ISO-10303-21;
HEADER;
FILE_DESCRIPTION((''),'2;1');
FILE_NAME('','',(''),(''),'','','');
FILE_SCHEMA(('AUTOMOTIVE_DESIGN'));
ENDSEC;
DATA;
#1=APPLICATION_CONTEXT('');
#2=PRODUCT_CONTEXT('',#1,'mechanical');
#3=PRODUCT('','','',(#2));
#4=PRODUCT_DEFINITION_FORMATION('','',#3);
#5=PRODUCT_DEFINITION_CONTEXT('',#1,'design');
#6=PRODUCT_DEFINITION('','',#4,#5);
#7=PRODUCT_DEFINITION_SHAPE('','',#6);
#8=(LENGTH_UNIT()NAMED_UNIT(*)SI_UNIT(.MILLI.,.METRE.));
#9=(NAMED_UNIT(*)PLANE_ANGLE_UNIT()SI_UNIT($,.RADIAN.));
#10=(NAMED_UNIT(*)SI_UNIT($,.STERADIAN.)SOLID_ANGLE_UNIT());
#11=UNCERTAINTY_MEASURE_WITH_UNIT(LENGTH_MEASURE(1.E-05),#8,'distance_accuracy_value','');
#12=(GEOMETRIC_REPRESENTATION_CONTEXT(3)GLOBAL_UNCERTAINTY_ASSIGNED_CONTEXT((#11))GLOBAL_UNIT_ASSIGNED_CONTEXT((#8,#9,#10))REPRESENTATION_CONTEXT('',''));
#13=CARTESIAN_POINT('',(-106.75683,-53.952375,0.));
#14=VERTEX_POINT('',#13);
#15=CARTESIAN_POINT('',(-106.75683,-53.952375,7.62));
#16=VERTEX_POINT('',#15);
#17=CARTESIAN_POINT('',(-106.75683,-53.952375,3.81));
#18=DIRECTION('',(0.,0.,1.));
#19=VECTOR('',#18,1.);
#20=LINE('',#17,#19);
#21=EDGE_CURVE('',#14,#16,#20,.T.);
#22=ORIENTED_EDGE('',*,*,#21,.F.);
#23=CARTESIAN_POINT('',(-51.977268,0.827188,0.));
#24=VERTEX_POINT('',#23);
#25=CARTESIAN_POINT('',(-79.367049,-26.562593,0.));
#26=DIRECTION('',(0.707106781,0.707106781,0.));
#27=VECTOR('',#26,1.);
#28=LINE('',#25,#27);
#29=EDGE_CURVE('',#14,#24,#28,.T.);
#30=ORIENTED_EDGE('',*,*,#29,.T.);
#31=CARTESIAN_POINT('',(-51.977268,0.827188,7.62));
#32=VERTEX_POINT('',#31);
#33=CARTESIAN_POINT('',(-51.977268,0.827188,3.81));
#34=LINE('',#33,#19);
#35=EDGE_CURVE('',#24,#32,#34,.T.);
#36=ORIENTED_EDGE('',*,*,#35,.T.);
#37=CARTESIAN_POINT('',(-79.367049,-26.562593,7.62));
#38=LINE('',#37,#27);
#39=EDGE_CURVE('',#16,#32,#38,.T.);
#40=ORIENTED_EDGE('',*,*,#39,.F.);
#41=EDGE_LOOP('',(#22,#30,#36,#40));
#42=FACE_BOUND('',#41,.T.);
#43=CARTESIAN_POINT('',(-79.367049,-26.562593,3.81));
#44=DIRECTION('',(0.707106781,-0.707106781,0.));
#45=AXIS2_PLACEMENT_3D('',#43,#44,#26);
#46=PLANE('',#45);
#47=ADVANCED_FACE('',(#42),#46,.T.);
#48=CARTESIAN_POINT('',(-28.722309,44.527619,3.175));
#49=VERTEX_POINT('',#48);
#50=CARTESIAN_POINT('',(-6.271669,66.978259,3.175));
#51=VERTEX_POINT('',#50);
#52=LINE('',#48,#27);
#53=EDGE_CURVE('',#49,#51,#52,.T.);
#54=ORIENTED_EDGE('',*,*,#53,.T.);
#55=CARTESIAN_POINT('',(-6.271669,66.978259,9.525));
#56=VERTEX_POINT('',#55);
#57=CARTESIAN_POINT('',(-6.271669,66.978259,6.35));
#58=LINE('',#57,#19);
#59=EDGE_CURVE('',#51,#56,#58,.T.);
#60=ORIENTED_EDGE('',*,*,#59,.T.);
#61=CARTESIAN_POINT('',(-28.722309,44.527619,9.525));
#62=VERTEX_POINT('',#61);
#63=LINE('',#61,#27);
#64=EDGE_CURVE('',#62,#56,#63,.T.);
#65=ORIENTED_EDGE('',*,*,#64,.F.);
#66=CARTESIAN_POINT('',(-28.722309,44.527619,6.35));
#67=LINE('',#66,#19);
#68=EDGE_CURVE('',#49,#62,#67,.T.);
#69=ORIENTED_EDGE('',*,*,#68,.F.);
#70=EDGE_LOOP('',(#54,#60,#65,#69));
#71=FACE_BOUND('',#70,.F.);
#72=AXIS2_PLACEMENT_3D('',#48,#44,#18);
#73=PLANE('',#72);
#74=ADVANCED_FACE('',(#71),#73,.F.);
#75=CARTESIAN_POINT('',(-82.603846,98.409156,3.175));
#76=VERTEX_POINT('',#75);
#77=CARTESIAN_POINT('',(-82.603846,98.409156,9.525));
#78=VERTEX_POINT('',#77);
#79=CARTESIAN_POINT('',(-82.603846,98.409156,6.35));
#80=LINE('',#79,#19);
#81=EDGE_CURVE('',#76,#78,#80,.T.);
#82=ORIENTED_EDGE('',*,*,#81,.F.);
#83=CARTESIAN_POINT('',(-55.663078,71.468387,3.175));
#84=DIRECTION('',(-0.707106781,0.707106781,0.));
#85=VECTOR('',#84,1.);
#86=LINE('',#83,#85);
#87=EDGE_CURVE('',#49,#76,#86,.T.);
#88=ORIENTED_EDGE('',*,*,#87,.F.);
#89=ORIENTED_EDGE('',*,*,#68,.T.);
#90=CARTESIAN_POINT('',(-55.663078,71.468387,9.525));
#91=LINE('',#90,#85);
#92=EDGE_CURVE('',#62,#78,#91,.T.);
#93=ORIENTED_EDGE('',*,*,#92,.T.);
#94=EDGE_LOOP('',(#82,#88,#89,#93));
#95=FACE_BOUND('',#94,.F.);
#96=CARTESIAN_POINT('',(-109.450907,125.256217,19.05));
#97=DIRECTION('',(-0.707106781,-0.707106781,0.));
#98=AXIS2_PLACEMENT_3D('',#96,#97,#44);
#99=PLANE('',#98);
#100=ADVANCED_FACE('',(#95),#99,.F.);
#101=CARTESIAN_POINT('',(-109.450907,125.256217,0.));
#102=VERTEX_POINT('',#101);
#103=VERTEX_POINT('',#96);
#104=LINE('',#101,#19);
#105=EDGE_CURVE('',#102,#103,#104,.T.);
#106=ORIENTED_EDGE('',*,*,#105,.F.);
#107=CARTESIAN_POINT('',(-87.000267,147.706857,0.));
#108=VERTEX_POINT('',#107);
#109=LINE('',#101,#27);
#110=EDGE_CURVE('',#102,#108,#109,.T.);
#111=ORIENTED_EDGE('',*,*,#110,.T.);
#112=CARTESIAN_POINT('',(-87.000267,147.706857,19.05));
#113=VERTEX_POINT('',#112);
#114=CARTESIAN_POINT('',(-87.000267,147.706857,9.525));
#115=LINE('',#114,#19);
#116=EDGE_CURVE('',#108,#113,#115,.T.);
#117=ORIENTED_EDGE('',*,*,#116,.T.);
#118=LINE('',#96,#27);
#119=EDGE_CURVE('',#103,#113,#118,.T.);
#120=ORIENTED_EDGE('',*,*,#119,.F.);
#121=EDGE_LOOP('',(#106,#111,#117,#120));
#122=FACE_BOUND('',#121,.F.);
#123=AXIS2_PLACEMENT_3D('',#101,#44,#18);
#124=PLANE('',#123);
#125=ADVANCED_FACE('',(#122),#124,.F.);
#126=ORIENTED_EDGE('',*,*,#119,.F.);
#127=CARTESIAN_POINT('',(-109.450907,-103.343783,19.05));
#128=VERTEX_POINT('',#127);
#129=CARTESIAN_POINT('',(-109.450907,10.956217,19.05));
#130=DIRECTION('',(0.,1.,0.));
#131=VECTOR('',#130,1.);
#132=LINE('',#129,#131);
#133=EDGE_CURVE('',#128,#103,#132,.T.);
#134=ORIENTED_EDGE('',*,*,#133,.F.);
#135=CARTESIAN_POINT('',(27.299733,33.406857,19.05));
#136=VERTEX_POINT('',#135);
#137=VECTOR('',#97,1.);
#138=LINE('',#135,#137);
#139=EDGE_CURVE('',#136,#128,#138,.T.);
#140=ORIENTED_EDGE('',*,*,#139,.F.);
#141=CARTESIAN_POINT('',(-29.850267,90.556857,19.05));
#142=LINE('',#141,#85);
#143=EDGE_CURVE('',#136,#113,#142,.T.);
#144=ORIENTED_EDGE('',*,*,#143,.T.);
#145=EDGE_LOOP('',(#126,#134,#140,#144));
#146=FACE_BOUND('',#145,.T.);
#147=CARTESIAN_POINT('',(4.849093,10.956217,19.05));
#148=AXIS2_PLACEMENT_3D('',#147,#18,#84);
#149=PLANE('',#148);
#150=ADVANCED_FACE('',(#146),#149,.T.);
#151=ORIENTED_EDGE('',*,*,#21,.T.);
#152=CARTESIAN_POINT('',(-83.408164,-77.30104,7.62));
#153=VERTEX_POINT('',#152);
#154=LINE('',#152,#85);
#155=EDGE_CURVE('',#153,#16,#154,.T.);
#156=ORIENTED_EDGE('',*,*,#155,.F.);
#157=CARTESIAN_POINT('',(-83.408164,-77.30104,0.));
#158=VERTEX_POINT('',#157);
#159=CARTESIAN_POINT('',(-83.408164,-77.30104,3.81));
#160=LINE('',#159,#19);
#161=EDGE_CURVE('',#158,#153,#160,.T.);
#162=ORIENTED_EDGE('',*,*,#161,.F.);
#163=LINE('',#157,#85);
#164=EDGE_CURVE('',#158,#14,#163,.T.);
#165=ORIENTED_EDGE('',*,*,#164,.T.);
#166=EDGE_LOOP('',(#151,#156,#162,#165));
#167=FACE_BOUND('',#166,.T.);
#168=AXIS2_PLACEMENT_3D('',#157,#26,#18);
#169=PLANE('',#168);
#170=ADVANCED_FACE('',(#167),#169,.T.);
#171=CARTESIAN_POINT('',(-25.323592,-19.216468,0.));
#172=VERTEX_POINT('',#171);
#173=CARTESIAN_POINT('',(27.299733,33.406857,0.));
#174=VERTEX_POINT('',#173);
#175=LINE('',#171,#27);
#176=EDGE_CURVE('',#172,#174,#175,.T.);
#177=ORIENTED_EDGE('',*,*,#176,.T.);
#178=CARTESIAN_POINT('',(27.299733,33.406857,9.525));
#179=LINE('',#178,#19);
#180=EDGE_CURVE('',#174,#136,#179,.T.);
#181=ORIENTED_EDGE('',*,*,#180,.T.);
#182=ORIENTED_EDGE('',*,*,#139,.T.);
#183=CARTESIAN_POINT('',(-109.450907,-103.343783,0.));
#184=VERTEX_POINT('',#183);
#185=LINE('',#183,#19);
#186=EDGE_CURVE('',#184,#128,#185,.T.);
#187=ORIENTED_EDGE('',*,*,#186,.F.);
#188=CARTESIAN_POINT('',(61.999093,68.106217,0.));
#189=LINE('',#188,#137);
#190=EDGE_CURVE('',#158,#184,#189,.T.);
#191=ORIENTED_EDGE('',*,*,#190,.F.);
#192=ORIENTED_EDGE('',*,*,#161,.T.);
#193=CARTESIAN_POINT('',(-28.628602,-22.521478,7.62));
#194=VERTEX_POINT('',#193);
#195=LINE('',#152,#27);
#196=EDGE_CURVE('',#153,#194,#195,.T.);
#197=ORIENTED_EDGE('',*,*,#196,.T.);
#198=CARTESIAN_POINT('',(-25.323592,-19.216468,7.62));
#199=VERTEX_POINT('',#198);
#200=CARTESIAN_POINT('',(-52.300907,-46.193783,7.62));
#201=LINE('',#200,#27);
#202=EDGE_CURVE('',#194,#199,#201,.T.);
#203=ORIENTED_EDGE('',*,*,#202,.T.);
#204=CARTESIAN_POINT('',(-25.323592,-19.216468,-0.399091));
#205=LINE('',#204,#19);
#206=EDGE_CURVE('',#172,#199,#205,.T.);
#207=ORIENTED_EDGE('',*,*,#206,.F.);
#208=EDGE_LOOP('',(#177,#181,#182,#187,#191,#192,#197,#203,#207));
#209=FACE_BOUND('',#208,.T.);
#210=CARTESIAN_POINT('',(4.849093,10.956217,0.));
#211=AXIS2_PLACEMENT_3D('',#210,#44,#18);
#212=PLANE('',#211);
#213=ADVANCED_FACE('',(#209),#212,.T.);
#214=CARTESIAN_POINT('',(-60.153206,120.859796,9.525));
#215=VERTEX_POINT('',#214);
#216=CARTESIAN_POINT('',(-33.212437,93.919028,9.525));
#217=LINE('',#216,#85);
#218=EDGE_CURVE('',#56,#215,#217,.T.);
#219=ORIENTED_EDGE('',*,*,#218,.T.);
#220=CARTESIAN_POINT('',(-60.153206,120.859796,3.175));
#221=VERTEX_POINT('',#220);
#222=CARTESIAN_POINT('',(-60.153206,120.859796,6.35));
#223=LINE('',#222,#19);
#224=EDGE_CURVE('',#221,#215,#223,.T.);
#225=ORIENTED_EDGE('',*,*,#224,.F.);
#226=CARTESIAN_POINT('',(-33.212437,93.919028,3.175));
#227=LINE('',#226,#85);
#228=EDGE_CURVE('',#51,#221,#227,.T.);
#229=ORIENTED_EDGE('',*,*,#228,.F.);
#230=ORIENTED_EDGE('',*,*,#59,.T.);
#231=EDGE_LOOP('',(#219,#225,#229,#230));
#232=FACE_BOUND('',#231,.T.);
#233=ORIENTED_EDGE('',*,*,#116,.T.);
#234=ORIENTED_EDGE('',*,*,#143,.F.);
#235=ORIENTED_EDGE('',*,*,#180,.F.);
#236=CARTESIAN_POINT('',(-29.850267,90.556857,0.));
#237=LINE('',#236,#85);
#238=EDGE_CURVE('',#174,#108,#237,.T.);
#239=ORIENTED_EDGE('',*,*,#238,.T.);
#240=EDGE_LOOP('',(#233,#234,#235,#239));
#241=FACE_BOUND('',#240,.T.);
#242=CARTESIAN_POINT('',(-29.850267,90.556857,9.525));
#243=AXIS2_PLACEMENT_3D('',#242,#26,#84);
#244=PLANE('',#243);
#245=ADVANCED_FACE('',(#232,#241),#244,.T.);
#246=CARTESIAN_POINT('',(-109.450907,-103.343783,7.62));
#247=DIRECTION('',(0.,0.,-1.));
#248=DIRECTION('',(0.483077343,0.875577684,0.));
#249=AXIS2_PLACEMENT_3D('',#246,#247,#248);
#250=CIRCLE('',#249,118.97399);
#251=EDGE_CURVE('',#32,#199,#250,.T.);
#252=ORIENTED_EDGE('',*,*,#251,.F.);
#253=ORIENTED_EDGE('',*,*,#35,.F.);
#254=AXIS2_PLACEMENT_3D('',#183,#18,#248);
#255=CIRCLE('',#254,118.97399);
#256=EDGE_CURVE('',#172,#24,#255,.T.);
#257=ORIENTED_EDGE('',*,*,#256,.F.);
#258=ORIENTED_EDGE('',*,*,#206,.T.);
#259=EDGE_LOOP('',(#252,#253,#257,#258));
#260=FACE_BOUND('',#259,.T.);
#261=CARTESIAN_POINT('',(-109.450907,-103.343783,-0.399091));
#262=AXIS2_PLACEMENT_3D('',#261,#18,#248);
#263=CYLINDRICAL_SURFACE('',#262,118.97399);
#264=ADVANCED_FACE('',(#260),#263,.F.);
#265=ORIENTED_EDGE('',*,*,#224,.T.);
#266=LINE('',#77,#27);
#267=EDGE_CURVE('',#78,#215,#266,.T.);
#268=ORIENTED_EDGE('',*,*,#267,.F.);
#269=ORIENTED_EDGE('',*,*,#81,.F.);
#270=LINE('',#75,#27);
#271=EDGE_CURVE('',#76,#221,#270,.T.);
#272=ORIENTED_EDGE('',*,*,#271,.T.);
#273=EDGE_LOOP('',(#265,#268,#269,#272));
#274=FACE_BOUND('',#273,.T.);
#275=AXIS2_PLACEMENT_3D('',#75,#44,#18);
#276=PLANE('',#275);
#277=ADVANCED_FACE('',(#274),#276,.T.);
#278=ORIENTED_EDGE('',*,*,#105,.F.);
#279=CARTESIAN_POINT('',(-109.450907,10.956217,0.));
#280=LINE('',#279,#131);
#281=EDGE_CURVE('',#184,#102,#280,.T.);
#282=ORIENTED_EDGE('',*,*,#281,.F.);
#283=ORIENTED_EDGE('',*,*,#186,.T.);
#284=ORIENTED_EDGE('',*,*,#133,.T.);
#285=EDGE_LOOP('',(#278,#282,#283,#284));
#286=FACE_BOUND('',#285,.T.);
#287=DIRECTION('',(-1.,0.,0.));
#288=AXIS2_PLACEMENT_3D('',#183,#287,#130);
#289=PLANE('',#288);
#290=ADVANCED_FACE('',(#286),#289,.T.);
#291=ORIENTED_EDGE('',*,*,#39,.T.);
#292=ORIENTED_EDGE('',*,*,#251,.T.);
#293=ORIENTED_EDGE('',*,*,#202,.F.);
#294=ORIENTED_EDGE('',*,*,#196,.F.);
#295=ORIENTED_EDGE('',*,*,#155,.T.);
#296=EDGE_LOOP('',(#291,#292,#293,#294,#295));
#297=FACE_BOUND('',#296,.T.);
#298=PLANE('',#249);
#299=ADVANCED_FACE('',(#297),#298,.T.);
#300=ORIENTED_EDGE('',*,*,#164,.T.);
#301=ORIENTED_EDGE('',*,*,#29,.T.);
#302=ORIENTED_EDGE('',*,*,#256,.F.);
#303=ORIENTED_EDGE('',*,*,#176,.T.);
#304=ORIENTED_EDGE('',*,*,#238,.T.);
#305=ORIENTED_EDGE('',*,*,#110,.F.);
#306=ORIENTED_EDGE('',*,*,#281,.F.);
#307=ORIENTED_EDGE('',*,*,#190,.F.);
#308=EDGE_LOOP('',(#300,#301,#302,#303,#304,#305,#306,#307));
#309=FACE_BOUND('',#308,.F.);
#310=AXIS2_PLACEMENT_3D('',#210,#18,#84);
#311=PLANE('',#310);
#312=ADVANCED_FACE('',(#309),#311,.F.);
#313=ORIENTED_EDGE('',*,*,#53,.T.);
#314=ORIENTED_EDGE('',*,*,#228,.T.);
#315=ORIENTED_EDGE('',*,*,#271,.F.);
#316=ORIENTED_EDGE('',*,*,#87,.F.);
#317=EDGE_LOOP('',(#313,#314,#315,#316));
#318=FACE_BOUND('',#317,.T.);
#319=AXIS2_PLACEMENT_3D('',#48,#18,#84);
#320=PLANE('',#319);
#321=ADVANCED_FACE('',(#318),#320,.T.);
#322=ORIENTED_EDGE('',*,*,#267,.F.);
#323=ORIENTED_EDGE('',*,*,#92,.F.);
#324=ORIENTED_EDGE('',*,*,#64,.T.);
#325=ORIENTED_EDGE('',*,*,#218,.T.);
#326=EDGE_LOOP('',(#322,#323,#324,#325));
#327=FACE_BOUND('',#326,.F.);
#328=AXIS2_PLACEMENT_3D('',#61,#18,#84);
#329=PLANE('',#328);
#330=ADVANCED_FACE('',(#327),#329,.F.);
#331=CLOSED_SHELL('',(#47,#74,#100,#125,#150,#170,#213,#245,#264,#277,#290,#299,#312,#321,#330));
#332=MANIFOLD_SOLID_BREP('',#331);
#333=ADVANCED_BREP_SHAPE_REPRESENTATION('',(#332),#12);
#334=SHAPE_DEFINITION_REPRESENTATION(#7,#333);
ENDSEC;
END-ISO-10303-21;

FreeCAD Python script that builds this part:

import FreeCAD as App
import Part
import Sketcher
from FreeCAD import Vector
Q = App.Units.Quantity


def add_polygon(sketch, points):
    """Adds a closed chain of lines whose ends are joined by coincident constraints."""
    first, n = sketch.GeometryCount, len(points)
    for a, b in zip(points, points[1:] + points[:1]):
        sketch.addGeometry(Part.LineSegment(App.Vector(*a, 0), App.Vector(*b, 0)), False)
    for i in range(n):
        sketch.addConstraint(Sketcher.Constraint("Coincident", first + i, 2, first + (i + 1) % n, 1))

doc = App.newDocument("Part")
body = doc.addObject("PartDesign::Body", "Body")

# Sketch on XY plane
sketch1 = doc.addObject("Sketcher::SketchObject", "Sketch")
body.addObject(sketch1)
sketch1.AttachmentSupport = (doc.XY_Plane, [""])
sketch1.MapMode = "FlatFace"
add_polygon(sketch1, [(-109, 125), (-109, -103), (119, -103), (119, 125)])  # lines 0-3
sketch1.addConstraint([
    Sketcher.Constraint("Vertical", 0),
    Sketcher.Constraint("Horizontal", 1),
    Sketcher.Constraint("Vertical", 2),
    Sketcher.Constraint("Horizontal", 3),
    Sketcher.Constraint("Equal", 3, 0),
    Sketcher.Constraint("DistanceX", 1, 1, 1, 2, Q("9 in")),
    Sketcher.Constraint("DistanceX", 0, 2, -1, 1, 109.450907),
    Sketcher.Constraint("DistanceY", 0, 2, -1, 1, 103.343783),
])
pad1 = doc.addObject("PartDesign::Pad", "Pad")
body.addObject(pad1)
pad1.Profile = sketch1
pad1.Length = Q("0.75 in")

# Sketch on XY plane
sketch2 = doc.addObject("Sketcher::SketchObject", "Sketch001")
body.addObject(sketch2)
sketch2.AttachmentSupport = (doc.XY_Plane, [""])
sketch2.MapMode = "FlatFace"
sketch2.AttachmentOffset = App.Placement(Vector(0, 0, 0.75 * 25.4), App.Rotation())
add_polygon(sketch2, [(156, -103), (119, 125), (-109, -103)])  # lines 0-2
sketch2.addConstraint([
    Sketcher.Constraint("Horizontal", 2),
    Sketcher.Constraint("Angle", 1, Q("-135 deg")),
    Sketcher.Constraint("DistanceX", 1, 2, 0, 2, Q("9 in")),
    Sketcher.Constraint("Distance", 0, 231.50656),
    Sketcher.Constraint("DistanceX", -1, 1, 2, 2, 155.71858),
    Sketcher.Constraint("DistanceY", -1, 1, 0, 2, 125.256217),
])
pocket1 = doc.addObject("PartDesign::Pocket", "Pocket")
body.addObject(pocket1)
pocket1.Profile = sketch2
pocket1.Type = "ThroughAll"

# Sketch on XY plane
sketch3 = doc.addObject("Sketcher::SketchObject", "Sketch002")
body.addObject(sketch3)
sketch3.AttachmentSupport = (doc.XY_Plane, [""])
sketch3.MapMode = "FlatFace"
sketch3.AttachmentOffset = App.Placement(Vector(0, 0, 0.75 * 25.4), App.Rotation())
add_polygon(sketch3, [(151, 139), (-109, 125), (5, 11)])  # lines 0-2
sketch3.addConstraint([
    Sketcher.Constraint("Angle", 1, Q("-45 deg")),
    Sketcher.Constraint("DistanceX", 0, 2, 1, 2, Q("4.5 in")),
    Sketcher.Constraint("Distance", 0, 260.45481),
    Sketcher.Constraint("Distance", 2, 194.117871),
    Sketcher.Constraint("DistanceX", -1, 1, 2, 2, 150.63414),
    Sketcher.Constraint("DistanceY", -1, 1, 0, 2, 125.256217),
])
pocket2 = doc.addObject("PartDesign::Pocket", "Pocket001")
body.addObject(pocket2)
pocket2.Profile = sketch3
pocket2.Length = Q("5 in")
pocket2.Midplane = True

# Sketch on an angled plane
sketch4 = doc.addObject("Sketcher::SketchObject", "Sketch003")
body.addObject(sketch4)
sketch4.Placement = App.Placement(Vector(-3.053562, 3.053562, 0), App.Rotation(Vector(0.707106781, 0.707106781, 0), Vector(0, 0, 0.999999999), Vector(0.707106781, -0.707106781, 0), "ZXY"))
add_polygon(sketch4, [(-114, 8), (-114, 0), (-36, 0), (-36, 8)])  # lines 0-3
sketch4.addConstraint([
    Sketcher.Constraint("Vertical", 0),
    Sketcher.Constraint("Horizontal", 1),
    Sketcher.Constraint("Vertical", 2),
    Sketcher.Constraint("Horizontal", 3),
    Sketcher.Constraint("PointOnObject", 0, 2, -1),
    Sketcher.Constraint("DistanceY", 0, 2, 0, 1, Q("0.3 in")),
    Sketcher.Constraint("DistanceX", 1, 1, 1, 2, Q("3.05 in")),
    Sketcher.Constraint("DistanceX", 0, 2, -1, 1, 113.638568),
])
pocket3 = doc.addObject("PartDesign::Pocket", "Pocket002")
body.addObject(pocket3)
pocket3.Profile = sketch4
pocket3.Length = Q("1.3 in")

# Sketch on an angled plane
sketch5 = doc.addObject("Sketcher::SketchObject", "Sketch004")
body.addObject(sketch5)
sketch5.Placement = App.Placement(Vector(7.902655, 7.902655, 0), App.Rotation(Vector(-0.707106781, 0.707106781, 0), Vector(0, 0, 0.999999999), Vector(0.707106781, 0.707106781, 0), "ZXY"))
add_polygon(sketch5, [(4, 19), (4, 0), (166, 0), (166, 19)])  # lines 0-3
add_polygon(sketch5, [(128, 3), (52, 3), (52, 10), (128, 10)])  # lines 4-7
sketch5.addConstraint([
    Sketcher.Constraint("Vertical", 0),
    Sketcher.Constraint("Horizontal", 1),
    Sketcher.Constraint("Vertical", 2),
    Sketcher.Constraint("Horizontal", 3),
    Sketcher.Constraint("Horizontal", 4),
    Sketcher.Constraint("Vertical", 5),
    Sketcher.Constraint("Horizontal", 6),
    Sketcher.Constraint("Vertical", 7),
    Sketcher.Constraint("PointOnObject", 0, 2, -1),
    Sketcher.Constraint("DistanceX", 4, 2, 4, 1, Q("3 in")),
    Sketcher.Constraint("DistanceY", 0, 2, 0, 1, Q("0.75 in")),
    Sketcher.Constraint("DistanceY", 5, 1, 5, 2, Q("0.25 in")),
    Sketcher.Constraint("DistanceY", -1, 1, 4, 2, Q("0.125 in")),
    Sketcher.Constraint("DistanceX", 1, 1, 1, 2, 161.64461),
    Sketcher.Constraint("DistanceX", -1, 1, 1, 2, 165.962999),
    Sketcher.Constraint("DistanceX", -1, 1, 4, 2, 51.795521),
])
pad2 = doc.addObject("PartDesign::Pad", "Pad001")
body.addObject(pad2)
pad2.Profile = sketch5
pad2.Length = Q("1.25 in")

# Sketch on an angled plane
sketch6 = doc.addObject("Sketcher::SketchObject", "Sketch005")
body.addObject(sketch6)
sketch6.Placement = App.Placement(Vector(-40.197536, 22.177951, 0), App.Rotation(Vector(-0.483077343, -0.875577684, 0), Vector(0, 0, 1), Vector(-0.875577684, 0.483077343, 0), "ZXY"))
add_polygon(sketch6, [(24, 8), (24, -8), (58, -8), (58, 8)])  # lines 0-3
sketch6.addGeometry(Part.LineSegment(Vector(143, 8, 0), Vector(143, -8, 0)), True)  # axis
sketch6.addConstraint([
    Sketcher.Constraint("Vertical", 0),
    Sketcher.Constraint("Horizontal", 1),
    Sketcher.Constraint("Vertical", 2),
    Sketcher.Constraint("Horizontal", 3),
    Sketcher.Constraint("Vertical", 4),
    Sketcher.Constraint("Horizontal", 3, 2, 4, 1),
    Sketcher.Constraint("Horizontal", 1, 2, 4, 2),
    Sketcher.Constraint("DistanceY", -1, 1, 2, 2, Q("0.3 in")),
    Sketcher.Constraint("DistanceY", 0, 2, 0, 1, 16.038182),
    Sketcher.Constraint("DistanceX", 1, 1, 1, 2, 33.956816),
    Sketcher.Constraint("DistanceX", -1, 1, 1, 2, 58.34159),
    Sketcher.Constraint("DistanceX", 3, 2, 4, 1, 118.97399),
])
groove = doc.addObject("PartDesign::Groove", "Groove")
body.addObject(groove)
groove.Profile = sketch6
groove.ReferenceAxis = (sketch6, ["Axis0"])
groove.Angle = 35

doc.recompute()
